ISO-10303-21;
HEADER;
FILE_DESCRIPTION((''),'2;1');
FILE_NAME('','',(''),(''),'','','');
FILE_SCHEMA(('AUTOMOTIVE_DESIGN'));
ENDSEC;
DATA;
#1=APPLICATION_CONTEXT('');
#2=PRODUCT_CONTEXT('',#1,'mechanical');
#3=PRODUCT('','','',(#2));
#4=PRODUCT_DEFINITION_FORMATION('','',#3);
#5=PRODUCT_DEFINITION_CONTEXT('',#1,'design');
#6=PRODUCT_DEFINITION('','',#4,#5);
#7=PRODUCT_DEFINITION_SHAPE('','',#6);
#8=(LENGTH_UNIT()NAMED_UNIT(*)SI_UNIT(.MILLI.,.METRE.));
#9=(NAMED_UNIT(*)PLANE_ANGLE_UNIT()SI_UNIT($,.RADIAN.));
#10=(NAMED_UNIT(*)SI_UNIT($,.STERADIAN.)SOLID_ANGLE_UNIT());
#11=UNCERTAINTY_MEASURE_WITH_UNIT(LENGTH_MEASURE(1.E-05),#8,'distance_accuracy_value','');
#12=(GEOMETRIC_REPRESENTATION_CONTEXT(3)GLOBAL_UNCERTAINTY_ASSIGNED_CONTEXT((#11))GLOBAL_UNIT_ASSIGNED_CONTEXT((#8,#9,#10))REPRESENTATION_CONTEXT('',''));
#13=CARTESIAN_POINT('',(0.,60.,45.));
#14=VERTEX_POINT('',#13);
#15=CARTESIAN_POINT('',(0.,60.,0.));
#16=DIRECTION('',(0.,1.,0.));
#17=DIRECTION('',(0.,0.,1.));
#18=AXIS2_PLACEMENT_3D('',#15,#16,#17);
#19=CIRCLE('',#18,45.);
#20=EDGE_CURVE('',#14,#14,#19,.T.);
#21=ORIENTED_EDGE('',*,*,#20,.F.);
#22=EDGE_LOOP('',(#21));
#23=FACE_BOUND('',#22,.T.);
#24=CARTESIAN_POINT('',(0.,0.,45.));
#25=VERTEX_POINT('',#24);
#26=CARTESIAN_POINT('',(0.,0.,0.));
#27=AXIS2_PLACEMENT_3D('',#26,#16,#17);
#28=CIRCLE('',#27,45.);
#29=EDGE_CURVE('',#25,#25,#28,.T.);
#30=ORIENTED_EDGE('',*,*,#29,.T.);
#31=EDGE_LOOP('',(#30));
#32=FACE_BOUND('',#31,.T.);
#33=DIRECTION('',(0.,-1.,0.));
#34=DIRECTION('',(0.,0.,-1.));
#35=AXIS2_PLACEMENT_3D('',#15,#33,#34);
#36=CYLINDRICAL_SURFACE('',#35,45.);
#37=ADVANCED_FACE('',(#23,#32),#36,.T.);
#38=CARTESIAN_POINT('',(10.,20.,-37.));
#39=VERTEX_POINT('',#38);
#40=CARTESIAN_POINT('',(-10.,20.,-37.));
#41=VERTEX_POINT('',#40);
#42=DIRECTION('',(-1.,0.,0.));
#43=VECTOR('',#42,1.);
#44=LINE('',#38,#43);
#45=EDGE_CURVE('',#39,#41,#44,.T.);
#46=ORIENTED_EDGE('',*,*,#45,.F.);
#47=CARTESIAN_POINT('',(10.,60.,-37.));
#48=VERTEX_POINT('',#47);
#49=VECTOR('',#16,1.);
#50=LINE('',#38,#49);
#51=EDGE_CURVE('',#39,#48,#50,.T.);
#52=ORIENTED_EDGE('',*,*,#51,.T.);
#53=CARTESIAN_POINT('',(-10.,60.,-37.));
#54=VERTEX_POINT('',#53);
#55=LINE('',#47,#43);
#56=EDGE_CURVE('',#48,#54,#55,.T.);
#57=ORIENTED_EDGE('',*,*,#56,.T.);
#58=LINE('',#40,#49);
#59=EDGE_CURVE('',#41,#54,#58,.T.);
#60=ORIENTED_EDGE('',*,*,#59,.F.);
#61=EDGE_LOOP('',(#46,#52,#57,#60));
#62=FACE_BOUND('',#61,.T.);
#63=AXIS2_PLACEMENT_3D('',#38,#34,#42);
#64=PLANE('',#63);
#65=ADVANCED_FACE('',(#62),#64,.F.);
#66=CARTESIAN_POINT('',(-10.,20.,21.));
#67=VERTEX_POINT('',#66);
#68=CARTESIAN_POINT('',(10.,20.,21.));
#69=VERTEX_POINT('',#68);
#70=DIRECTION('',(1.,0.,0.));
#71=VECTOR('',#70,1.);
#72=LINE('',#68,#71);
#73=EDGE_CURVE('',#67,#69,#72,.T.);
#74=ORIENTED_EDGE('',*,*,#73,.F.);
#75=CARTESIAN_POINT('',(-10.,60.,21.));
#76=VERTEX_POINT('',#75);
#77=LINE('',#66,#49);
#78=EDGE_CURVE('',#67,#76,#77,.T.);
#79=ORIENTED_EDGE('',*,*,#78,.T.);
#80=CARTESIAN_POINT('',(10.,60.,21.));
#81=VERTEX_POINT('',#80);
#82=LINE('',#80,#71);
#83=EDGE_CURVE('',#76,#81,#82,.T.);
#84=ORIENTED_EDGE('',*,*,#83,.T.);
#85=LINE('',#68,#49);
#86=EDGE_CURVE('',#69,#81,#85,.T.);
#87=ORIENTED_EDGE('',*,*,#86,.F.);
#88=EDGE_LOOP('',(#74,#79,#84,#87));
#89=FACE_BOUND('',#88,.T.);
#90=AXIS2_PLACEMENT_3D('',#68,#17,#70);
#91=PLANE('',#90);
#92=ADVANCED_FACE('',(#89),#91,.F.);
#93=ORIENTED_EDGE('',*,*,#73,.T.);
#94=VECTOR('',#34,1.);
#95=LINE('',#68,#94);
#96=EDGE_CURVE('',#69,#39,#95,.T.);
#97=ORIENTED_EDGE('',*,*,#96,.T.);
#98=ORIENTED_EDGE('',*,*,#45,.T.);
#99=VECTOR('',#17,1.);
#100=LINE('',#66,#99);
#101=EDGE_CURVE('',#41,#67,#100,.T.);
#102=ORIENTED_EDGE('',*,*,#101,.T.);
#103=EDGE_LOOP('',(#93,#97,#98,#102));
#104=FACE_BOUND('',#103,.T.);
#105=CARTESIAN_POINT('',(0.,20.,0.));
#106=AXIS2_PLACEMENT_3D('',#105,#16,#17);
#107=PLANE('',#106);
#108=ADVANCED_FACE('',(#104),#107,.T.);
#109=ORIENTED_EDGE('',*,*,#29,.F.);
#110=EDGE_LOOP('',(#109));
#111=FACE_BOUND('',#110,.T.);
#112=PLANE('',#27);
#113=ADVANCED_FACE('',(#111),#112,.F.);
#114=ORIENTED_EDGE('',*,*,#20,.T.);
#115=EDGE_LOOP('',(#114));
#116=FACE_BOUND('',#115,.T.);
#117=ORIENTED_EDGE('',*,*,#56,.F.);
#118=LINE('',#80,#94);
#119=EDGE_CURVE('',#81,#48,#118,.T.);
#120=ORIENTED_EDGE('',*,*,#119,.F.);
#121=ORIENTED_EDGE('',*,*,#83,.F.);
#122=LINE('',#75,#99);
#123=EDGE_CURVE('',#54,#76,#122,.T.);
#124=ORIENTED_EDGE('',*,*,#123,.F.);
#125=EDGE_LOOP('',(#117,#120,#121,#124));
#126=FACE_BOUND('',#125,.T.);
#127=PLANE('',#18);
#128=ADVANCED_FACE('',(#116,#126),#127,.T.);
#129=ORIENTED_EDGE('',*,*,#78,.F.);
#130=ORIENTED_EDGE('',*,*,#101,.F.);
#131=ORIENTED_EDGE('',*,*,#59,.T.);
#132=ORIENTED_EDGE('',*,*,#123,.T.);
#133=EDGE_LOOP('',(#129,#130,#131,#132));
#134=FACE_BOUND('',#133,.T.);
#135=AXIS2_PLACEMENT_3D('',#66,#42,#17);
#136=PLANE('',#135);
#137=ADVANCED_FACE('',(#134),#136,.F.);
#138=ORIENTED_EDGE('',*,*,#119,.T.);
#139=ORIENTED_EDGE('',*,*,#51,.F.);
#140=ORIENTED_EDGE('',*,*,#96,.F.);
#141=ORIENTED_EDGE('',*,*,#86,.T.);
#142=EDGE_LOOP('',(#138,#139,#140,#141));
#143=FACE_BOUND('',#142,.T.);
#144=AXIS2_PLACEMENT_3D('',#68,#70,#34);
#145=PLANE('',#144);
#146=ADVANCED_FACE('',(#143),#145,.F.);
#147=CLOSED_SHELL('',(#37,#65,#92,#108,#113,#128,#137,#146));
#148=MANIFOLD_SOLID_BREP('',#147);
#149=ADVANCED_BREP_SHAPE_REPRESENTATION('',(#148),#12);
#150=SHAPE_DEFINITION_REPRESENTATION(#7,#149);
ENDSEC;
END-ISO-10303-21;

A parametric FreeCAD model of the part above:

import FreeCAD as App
import Part
import Sketcher

doc = App.newDocument("Part")
body = doc.addObject("PartDesign::Body", "Body")

# Sketch on XZ plane
sketch1 = body.newObject("Sketcher::SketchObject", "Sketch")
sketch1.AttachmentSupport = (doc.getObject("XZ_Plane"), [""])
sketch1.MapMode = "FlatFace"
sketch1.addGeometry(Part.Circle(App.Vector(0, 0, 0), App.Vector(0, 0, 1), 45), False)
sketch1.addConstraint([
    Sketcher.Constraint("Coincident", 0, 3, -1, 1),
    Sketcher.Constraint("Diameter", 0, 90.0),
])
pad1 = body.newObject("PartDesign::Pad", "Pad")
pad1.Profile = sketch1
pad1.Length = 60
pad1.Reversed = True

# Sketch on XZ plane
sketch2 = body.newObject("Sketcher::SketchObject", "Sketch001")
sketch2.AttachmentSupport = (doc.getObject("XZ_Plane"), [""])
sketch2.MapMode = "FlatFace"
sketch2.AttachmentOffset = App.Placement(App.Vector(0, 0, -60), App.Rotation())
sketch2.addGeometry([
    Part.LineSegment(App.Vector(-10, -37, 0), App.Vector(-10, 21, 0)),
    Part.LineSegment(App.Vector(-10, 21, 0), App.Vector(10, 21, 0)),
    Part.LineSegment(App.Vector(10, 21, 0), App.Vector(10, -37, 0)),
    Part.LineSegment(App.Vector(10, -37, 0), App.Vector(-10, -37, 0)),
], False)
sketch2.addConstraint([
    Sketcher.Constraint("Coincident", 0, 2, 1, 1),
    Sketcher.Constraint("Coincident", 1, 2, 2, 1),
    Sketcher.Constraint("Coincident", 2, 2, 3, 1),
    Sketcher.Constraint("Coincident", 3, 2, 0, 1),
    Sketcher.Constraint("Vertical", 0),
    Sketcher.Constraint("Horizontal", 1),
    Sketcher.Constraint("Vertical", 2),
    Sketcher.Constraint("Horizontal", 3),
    Sketcher.Constraint("DistanceX", 1, 1, 1, 2, 20.0),
    Sketcher.Constraint("DistanceY", 0, 1, 0, 2, 58.0),
    Sketcher.Constraint("DistanceX", 0, 2, -1, 1, 10.0),
    Sketcher.Constraint("DistanceY", -1, 1, 0, 2, 21.0),
])
pocket1 = body.newObject("PartDesign::Pocket", "Pocket")
pocket1.Profile = sketch2
pocket1.Length = 40
pocket1.Reversed = True

doc.recompute()
